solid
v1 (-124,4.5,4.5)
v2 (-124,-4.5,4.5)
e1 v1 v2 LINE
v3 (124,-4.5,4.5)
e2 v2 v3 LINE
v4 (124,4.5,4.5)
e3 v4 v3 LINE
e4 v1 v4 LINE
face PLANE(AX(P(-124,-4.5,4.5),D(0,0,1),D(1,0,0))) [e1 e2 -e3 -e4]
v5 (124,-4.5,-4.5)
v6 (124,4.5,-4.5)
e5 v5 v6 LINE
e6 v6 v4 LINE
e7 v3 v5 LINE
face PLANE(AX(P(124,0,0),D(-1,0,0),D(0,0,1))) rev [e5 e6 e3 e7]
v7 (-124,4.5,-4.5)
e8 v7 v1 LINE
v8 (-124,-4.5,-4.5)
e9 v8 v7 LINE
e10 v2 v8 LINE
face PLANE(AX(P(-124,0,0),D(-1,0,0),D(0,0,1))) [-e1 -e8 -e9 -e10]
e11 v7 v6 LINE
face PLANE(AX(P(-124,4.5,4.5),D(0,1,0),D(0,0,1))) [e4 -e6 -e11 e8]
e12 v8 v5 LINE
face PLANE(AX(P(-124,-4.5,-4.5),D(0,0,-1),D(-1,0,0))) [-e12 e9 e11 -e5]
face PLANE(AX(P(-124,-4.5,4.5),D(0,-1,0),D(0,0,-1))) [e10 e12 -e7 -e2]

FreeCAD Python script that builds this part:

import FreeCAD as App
import Part
import Sketcher

doc = App.newDocument("Part")
body = doc.addObject("PartDesign::Body", "Body")

# Sketch on YZ plane
sketch1 = body.newObject("Sketcher::SketchObject", "Sketch")
sketch1.AttachmentSupport = (doc.getObject("YZ_Plane"), [""])
sketch1.MapMode = "FlatFace"
sketch1.addGeometry([
    Part.LineSegment(App.Vector(4, 4, 0), App.Vector(-4, 4, 0)),
    Part.LineSegment(App.Vector(-4, 4, 0), App.Vector(-4, -4, 0)),
    Part.LineSegment(App.Vector(-4, -4, 0), App.Vector(4, -4, 0)),
    Part.LineSegment(App.Vector(4, -4, 0), App.Vector(4, 4, 0)),
], False)
sketch1.addConstraint([
    Sketcher.Constraint("Coincident", 0, 2, 1, 1),
    Sketcher.Constraint("Coincident", 1, 2, 2, 1),
    Sketcher.Constraint("Coincident", 2, 2, 3, 1),
    Sketcher.Constraint("Coincident", 3, 2, 0, 1),
    Sketcher.Constraint("Horizontal", 0),
    Sketcher.Constraint("Vertical", 1),
    Sketcher.Constraint("Horizontal", 2),
    Sketcher.Constraint("Vertical", 3),
    Sketcher.Constraint("Symmetric", 0, 2, 2, 2, -1, 1),
    Sketcher.Constraint("Equal", 2, 1),
    Sketcher.Constraint("DistanceX", 0, 2, 0, 1, 9.0),
])
pad1 = body.newObject("PartDesign::Pad", "Pad")
pad1.Profile = sketch1
pad1.Type = "TwoLengths"
pad1.Length = 124
pad1.Length2 = 124

doc.recompute()
